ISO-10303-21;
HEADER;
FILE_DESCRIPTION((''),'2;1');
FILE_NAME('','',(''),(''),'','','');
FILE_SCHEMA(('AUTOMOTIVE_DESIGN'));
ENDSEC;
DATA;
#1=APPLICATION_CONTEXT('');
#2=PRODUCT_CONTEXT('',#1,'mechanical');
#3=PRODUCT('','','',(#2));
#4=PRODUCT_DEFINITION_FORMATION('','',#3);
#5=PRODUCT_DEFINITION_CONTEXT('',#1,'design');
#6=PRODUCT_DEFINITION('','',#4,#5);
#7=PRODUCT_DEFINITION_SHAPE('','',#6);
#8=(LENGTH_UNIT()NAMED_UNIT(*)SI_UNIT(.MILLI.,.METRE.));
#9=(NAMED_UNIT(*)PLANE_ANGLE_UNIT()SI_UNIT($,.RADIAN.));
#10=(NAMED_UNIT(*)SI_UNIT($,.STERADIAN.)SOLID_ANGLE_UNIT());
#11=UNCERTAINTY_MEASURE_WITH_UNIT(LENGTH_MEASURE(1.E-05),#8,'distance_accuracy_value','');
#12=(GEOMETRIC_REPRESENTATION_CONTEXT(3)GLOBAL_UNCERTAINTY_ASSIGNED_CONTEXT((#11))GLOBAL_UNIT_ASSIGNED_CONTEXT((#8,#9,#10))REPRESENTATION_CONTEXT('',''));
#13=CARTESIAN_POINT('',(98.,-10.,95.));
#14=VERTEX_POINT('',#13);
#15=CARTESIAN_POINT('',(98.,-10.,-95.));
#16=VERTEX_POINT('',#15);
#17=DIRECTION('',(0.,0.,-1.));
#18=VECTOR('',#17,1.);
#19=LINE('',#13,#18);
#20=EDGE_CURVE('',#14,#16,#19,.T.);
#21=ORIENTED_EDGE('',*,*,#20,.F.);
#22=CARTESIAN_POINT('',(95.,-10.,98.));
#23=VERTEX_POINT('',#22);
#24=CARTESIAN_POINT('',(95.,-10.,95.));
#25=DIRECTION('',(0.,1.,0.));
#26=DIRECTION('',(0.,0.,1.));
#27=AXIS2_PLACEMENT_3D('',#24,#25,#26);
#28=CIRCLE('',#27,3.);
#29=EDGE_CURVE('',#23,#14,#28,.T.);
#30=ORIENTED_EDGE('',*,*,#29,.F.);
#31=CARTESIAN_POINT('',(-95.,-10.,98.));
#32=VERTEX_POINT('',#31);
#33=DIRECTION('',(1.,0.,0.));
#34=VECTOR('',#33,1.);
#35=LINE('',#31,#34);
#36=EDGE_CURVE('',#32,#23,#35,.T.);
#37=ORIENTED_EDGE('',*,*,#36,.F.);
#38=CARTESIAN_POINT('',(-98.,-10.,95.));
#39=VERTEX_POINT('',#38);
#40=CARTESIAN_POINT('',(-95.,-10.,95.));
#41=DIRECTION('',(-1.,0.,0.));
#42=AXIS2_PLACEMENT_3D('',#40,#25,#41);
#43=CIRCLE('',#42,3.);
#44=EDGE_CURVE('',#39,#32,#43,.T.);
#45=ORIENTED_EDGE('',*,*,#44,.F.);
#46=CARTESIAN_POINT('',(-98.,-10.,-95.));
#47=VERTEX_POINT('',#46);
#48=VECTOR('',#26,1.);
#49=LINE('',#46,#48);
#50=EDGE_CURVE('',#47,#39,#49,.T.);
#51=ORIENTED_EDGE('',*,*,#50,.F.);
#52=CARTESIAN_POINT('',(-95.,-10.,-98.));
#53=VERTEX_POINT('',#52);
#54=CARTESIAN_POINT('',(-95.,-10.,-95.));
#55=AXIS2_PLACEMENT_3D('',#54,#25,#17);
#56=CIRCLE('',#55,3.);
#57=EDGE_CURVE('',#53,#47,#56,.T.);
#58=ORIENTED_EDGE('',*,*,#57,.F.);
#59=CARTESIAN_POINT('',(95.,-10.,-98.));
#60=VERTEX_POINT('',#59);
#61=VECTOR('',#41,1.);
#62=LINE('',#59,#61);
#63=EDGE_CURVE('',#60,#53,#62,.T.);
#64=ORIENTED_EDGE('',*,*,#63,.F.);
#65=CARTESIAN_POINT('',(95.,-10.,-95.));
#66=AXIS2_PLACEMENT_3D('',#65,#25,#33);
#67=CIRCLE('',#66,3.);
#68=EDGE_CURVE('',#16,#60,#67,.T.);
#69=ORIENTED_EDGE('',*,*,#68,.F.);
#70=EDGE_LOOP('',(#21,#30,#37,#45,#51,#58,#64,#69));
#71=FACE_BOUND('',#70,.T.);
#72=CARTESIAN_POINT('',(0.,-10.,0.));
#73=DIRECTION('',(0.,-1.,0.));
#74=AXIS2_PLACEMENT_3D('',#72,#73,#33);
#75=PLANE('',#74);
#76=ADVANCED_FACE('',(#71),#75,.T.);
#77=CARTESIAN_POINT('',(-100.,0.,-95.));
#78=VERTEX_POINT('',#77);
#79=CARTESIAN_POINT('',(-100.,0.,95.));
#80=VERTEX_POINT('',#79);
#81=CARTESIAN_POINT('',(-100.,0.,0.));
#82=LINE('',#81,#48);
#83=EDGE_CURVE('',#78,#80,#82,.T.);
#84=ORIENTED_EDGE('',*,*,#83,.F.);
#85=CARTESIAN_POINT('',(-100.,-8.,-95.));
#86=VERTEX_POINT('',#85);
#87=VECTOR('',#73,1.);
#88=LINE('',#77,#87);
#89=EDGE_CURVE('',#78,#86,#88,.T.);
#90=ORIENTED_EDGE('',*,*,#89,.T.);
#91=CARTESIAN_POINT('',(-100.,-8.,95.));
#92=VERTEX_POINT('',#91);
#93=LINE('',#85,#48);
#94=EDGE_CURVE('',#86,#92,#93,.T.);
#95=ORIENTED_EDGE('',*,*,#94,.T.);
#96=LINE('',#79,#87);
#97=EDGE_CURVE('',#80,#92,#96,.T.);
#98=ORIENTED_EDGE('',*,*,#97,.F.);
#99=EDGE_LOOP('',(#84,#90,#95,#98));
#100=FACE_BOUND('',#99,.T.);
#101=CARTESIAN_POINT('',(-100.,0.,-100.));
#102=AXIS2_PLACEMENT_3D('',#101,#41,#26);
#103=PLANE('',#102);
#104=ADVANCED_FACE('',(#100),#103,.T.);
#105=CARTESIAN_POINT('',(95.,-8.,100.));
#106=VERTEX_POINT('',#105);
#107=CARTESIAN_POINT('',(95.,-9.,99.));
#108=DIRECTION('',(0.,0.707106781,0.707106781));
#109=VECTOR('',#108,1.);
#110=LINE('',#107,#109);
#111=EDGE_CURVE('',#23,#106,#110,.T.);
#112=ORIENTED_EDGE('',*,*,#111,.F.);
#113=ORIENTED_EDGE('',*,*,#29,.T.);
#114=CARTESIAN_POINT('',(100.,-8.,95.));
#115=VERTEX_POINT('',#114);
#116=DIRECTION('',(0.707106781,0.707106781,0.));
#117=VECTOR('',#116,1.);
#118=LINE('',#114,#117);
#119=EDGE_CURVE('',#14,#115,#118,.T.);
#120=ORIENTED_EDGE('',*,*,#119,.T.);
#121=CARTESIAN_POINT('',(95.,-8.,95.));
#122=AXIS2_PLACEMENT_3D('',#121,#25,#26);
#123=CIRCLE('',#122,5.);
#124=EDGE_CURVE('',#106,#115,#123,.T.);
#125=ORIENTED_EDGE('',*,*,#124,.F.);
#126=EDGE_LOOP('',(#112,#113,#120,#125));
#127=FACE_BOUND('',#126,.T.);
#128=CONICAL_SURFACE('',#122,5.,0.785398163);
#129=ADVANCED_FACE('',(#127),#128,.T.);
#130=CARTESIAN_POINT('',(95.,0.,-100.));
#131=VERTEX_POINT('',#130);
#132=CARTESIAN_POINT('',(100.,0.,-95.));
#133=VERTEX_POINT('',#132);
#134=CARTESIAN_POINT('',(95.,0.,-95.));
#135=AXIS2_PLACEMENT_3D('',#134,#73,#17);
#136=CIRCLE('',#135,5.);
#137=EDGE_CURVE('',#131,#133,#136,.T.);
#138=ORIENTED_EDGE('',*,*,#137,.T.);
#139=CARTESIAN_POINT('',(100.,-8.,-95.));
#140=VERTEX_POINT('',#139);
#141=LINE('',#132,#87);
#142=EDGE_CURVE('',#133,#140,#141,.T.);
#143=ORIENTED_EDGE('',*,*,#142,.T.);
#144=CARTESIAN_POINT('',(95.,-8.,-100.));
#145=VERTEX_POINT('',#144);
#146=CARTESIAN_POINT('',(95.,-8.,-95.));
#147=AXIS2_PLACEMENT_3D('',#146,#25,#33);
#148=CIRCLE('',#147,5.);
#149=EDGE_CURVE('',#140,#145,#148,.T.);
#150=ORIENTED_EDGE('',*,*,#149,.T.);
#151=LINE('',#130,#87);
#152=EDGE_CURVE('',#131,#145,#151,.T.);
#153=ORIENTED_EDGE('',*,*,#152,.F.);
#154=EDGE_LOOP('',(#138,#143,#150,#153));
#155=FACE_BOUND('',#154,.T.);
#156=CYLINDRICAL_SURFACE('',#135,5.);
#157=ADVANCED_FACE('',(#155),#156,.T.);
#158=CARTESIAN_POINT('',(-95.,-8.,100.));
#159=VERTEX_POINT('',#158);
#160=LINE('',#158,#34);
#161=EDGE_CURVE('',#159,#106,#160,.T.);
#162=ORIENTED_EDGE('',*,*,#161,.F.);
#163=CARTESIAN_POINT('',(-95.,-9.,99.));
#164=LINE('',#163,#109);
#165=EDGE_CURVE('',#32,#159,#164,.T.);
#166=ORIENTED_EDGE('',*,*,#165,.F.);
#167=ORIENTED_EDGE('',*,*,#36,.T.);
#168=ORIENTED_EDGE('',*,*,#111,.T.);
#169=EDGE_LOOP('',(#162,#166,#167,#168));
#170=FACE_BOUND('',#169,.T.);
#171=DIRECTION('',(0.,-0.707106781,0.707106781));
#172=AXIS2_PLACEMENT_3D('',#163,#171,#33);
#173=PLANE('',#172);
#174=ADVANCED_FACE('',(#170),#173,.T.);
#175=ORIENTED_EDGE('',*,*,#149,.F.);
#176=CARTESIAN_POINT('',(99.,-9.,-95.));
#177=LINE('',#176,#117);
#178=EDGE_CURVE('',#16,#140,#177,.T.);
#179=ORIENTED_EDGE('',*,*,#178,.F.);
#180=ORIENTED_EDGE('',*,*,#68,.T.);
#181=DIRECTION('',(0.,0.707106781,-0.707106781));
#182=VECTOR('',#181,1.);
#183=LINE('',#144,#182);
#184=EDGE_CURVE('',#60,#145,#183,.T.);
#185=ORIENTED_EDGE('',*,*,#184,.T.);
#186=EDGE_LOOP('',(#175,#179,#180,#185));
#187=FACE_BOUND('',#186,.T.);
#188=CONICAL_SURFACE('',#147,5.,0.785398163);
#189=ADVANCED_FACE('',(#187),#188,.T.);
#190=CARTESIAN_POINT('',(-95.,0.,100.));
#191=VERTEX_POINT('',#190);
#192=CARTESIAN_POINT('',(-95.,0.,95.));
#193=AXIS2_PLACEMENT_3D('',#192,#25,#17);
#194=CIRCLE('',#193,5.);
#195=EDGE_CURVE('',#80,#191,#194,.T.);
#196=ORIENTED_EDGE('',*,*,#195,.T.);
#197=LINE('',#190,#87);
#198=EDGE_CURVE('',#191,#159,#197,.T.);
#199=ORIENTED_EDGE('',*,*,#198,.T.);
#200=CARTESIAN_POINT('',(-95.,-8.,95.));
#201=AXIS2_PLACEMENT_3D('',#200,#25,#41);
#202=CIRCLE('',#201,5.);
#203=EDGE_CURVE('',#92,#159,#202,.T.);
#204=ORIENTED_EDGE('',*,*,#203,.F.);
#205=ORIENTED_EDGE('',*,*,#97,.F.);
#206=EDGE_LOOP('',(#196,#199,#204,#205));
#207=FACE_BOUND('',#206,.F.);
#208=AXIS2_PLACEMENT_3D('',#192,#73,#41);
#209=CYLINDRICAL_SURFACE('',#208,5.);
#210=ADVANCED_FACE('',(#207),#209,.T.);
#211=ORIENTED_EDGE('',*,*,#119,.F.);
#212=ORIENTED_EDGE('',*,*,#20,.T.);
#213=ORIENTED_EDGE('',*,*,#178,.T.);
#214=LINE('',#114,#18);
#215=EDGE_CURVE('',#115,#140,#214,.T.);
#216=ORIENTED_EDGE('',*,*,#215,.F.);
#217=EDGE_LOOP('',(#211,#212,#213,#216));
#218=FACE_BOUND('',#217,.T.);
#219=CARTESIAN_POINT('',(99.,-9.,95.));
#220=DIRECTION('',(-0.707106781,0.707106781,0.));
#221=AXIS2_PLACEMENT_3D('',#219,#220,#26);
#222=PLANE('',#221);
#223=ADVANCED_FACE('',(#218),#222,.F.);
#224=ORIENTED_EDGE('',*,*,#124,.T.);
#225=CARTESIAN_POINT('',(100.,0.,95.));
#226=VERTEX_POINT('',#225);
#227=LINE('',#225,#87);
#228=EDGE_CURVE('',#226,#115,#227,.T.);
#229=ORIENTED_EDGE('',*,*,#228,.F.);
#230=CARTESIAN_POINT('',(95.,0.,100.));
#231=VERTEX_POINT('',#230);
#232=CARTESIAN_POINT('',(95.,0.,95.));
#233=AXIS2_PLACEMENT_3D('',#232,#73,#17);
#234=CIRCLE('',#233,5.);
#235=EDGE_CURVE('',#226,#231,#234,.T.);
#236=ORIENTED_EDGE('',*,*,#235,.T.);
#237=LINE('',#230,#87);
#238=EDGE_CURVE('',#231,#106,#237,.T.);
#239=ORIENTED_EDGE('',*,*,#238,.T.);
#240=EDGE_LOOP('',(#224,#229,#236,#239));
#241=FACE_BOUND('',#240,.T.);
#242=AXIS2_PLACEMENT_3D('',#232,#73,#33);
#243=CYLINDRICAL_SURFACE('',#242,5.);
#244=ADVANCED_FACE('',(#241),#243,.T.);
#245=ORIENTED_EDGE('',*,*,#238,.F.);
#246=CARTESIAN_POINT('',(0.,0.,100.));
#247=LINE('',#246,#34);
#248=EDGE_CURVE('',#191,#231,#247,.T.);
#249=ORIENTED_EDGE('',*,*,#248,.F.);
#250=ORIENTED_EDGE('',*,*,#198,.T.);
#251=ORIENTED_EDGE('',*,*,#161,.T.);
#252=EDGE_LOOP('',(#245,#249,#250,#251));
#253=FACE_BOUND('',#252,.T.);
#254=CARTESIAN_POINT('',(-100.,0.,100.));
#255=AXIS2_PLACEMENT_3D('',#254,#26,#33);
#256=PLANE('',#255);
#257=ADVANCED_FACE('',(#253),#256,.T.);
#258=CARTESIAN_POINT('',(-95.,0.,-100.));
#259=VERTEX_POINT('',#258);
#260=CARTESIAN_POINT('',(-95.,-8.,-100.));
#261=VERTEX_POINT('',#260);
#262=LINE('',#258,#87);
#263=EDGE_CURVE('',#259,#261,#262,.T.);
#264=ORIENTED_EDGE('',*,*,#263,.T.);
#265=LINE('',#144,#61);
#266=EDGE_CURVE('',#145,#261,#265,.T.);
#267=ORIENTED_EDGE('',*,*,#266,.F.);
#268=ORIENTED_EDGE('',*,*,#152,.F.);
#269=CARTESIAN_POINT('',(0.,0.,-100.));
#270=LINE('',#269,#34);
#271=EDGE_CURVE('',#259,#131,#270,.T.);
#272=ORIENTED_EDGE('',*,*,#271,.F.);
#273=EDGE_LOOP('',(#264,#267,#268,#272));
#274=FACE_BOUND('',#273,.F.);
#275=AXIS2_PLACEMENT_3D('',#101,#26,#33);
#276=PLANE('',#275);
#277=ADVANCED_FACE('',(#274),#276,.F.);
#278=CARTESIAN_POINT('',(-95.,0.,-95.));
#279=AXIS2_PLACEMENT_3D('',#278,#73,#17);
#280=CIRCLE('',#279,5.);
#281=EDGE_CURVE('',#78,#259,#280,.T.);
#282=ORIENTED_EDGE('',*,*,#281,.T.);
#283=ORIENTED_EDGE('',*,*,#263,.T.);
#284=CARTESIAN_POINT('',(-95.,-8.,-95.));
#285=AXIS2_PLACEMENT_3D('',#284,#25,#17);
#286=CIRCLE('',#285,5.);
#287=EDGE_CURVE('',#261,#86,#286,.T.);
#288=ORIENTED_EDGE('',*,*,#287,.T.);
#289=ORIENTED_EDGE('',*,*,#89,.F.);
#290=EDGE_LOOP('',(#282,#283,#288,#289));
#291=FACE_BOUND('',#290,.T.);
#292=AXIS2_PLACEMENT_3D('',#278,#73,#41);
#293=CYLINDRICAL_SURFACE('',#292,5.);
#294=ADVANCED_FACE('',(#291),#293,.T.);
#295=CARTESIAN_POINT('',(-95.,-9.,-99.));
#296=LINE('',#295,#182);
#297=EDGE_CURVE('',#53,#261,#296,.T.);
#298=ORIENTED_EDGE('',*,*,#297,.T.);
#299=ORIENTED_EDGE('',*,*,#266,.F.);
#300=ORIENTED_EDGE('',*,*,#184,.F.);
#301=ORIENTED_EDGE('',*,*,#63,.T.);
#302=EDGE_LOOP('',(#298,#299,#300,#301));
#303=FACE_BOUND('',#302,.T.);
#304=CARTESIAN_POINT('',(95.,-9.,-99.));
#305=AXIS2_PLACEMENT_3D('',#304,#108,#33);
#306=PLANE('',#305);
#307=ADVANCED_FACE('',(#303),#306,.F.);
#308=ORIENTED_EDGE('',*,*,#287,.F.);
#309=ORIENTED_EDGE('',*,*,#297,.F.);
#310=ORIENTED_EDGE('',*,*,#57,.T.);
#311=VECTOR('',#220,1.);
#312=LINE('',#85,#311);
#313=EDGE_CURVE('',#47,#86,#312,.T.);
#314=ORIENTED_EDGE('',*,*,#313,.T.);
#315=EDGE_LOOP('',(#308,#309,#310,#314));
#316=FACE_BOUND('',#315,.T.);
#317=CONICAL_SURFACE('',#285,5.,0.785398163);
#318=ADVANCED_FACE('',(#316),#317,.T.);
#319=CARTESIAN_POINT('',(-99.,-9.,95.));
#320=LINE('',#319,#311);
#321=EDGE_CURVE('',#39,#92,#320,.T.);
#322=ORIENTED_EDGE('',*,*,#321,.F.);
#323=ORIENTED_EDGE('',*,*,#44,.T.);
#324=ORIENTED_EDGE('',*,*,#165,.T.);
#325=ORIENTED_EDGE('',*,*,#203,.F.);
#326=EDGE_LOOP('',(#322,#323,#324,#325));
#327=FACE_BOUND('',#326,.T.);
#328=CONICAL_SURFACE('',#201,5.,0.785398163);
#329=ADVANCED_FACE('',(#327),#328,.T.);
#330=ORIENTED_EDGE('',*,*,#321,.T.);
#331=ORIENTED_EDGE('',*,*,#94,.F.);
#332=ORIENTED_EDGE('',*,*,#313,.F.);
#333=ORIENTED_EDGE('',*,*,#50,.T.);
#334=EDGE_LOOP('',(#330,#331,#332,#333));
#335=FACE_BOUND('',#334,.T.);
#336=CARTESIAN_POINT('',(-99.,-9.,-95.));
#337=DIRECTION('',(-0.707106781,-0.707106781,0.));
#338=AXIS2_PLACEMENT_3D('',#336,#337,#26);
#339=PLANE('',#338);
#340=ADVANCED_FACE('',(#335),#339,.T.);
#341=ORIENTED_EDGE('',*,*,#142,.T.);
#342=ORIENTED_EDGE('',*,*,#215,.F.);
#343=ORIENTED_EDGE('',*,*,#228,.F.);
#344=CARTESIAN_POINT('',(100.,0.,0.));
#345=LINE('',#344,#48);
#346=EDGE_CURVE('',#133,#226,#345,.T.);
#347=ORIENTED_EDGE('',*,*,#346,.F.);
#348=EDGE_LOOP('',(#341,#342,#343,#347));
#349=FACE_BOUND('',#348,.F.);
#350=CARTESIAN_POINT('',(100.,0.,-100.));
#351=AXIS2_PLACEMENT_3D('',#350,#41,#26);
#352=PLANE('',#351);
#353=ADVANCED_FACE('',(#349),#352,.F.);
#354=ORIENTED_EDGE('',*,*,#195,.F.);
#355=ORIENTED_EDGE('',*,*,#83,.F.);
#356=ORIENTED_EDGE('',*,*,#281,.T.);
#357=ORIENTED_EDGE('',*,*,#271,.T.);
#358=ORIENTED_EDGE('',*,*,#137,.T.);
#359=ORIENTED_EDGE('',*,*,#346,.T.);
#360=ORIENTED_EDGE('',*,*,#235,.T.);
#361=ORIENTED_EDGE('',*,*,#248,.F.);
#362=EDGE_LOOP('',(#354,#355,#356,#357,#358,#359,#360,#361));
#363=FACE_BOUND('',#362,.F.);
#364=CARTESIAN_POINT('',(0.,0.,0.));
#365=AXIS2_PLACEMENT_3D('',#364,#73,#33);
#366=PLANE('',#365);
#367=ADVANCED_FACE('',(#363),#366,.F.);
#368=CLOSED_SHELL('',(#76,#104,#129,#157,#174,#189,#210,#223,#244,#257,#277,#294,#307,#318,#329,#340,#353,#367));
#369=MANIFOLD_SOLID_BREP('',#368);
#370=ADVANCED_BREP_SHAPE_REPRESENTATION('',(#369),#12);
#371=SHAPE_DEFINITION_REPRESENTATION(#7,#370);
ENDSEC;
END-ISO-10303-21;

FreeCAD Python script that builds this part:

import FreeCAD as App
import Part
import Sketcher

V = App.Vector
Q = App.Units.Quantity


def edges_at(feature, points):
    """Names of the edges that pass closest to the given points."""
    edges = feature.Shape.Edges
    near = lambda p: min(range(len(edges)), key=lambda i: edges[i].distToShape(Part.Vertex(*p))[0])
    return sorted({f"Edge{near(p) + 1}" for p in points})

doc = App.newDocument("Part")
params = doc.addObject("Spreadsheet::Sheet", "Params")
for row, (alias, value) in enumerate([
    ("sketch1_width", "200 mm"),
    ("pad1_length", "10 mm"),
    ("fillet_radius", "5 mm"),
    ("chamfer_size", "2 mm"),
], start=1):
    params.set(f"A{row}", alias)
    params.set(f"B{row}", "=" + value)
    params.setAlias(f"B{row}", alias)

body = doc.addObject("PartDesign::Body", "Body")

sketch1 = doc.addObject("Sketcher::SketchObject", "Sketch")
body.addObject(sketch1)
sketch1.AttachmentSupport = (doc.XZ_Plane, [""])
sketch1.MapMode = "FlatFace"
sketch1.addGeometry(Part.LineSegment(V(-100, 100, 0), V(-100, -100, 0)), False)
sketch1.addGeometry(Part.LineSegment(V(-100, -100, 0), V(100, -100, 0)), False)
sketch1.addGeometry(Part.LineSegment(V(100, -100, 0), V(100, 100, 0)), False)
sketch1.addGeometry(Part.LineSegment(V(100, 100, 0), V(-100, 100, 0)), False)
sketch1.addConstraint(Sketcher.Constraint("Coincident", 0, 2, 1, 1))
sketch1.addConstraint(Sketcher.Constraint("Coincident", 1, 2, 2, 1))
sketch1.addConstraint(Sketcher.Constraint("Coincident", 2, 2, 3, 1))
sketch1.addConstraint(Sketcher.Constraint("Coincident", 3, 2, 0, 1))
sketch1.addConstraint(Sketcher.Constraint("Vertical", 0))
sketch1.addConstraint(Sketcher.Constraint("Horizontal", 1))
sketch1.addConstraint(Sketcher.Constraint("Vertical", 2))
sketch1.addConstraint(Sketcher.Constraint("Horizontal", 3))
sketch1.addConstraint(Sketcher.Constraint("Symmetric", 0, 2, 2, 2, -1, 1))
sketch1.addConstraint(Sketcher.Constraint("Equal", 3, 0))
sketch1.addConstraint(Sketcher.Constraint("DistanceX", 1, 1, 1, 2, Q("200 mm")))
sketch1.setExpression("Constraints[10]", "Params.sketch1_width")
pad1 = doc.addObject("PartDesign::Pad", "Pad")
body.addObject(pad1)
pad1.Profile = sketch1
pad1.setExpression("Length", "Params.pad1_length")
doc.recompute()

fillet = doc.addObject("PartDesign::Fillet", "Fillet")
body.addObject(fillet)
fillet.Base = (pad1, edges_at(pad1, [
    (100, -5, -100),
    (-100, -5, -100),
    (-100, -5, 100),
    (100, -5, 100),
]))
fillet.setExpression("Radius", "Params.fillet_radius")
doc.recompute()

chamfer = doc.addObject("PartDesign::Chamfer", "Chamfer")
body.addObject(chamfer)
chamfer.Base = (fillet, edges_at(fillet, [
    (0, -10, 100),
    (98.536, -10, 98.536),
    (-98.536, -10, 98.536),
    (100, -10, 0),
    (-100, -10, 0),
    (98.536, -10, -98.536),
    (-98.536, -10, -98.536),
    (0, -10, -100),
]))
chamfer.setExpression("Size", "Params.chamfer_size")

doc.recompute()
